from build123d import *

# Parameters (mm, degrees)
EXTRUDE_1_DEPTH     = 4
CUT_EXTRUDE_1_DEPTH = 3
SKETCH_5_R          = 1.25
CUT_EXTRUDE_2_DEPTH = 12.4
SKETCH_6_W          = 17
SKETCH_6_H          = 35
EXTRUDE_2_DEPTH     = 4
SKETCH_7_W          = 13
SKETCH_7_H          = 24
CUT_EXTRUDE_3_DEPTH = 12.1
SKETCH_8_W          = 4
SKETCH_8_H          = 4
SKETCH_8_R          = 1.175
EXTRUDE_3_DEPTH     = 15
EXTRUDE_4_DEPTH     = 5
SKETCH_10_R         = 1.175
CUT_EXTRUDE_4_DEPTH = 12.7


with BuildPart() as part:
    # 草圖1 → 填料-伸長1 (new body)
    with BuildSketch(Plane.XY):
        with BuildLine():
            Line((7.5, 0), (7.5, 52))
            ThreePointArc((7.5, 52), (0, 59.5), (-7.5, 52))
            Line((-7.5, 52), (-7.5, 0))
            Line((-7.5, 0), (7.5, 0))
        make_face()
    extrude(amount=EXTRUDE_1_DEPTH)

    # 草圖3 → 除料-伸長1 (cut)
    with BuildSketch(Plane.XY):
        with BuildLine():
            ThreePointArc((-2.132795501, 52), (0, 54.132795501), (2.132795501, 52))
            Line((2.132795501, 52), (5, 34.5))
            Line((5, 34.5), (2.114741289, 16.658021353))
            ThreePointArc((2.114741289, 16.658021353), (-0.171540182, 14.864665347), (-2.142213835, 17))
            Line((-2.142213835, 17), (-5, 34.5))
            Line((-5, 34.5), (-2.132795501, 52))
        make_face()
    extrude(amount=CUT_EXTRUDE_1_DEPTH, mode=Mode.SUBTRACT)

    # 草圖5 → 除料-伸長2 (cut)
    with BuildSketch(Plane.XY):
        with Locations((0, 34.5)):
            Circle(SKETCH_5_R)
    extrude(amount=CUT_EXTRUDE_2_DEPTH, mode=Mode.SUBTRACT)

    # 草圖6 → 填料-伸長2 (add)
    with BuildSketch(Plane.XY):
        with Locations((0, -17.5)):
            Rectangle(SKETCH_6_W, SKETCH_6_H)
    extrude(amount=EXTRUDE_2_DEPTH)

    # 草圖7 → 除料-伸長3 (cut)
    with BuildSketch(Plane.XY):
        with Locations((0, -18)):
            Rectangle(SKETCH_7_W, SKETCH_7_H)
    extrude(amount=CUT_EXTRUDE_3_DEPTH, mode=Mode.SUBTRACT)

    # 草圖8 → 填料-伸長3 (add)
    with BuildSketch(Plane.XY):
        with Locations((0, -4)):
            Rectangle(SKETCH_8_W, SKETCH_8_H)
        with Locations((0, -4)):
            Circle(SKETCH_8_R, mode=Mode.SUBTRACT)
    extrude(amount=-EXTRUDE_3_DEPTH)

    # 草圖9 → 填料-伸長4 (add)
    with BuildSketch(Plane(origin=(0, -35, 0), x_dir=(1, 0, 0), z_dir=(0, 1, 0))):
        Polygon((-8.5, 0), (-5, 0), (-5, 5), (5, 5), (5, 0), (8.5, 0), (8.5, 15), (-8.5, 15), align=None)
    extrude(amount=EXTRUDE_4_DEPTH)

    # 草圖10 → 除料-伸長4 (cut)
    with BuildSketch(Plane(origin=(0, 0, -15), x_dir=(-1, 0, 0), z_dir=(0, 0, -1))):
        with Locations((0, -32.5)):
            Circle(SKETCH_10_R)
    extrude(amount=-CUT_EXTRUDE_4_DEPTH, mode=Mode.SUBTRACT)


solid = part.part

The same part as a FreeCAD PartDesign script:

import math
import FreeCAD as App
import Part
import Sketcher

V = App.Vector
Q = App.Units.Quantity

doc = App.newDocument("Part")
body = doc.addObject("PartDesign::Body", "Body")

# Sketch on XY plane
sketch1 = body.newObject("Sketcher::SketchObject", "Sketch")
sketch1.AttachmentSupport = (doc.getObject("XY_Plane"), [""])
sketch1.MapMode = "FlatFace"
sketch1.addGeometry([
    Part.LineSegment(V(8, 0, 0), V(8, 52, 0)),
    Part.ArcOfCircle(Part.Circle(V(0, 52, 0), V(0, 0, 1), 8), math.radians(0), math.radians(180)),
    Part.LineSegment(V(-8, 52, 0), V(-8, 0, 0)),
    Part.LineSegment(V(-8, 0, 0), V(8, 0, 0)),
], False)
sketch1.addConstraint([
    Sketcher.Constraint("Tangent", 0, 2, 1, 1),
    Sketcher.Constraint("Tangent", 1, 2, 2, 1),
    Sketcher.Constraint("Coincident", 2, 2, 3, 1),
    Sketcher.Constraint("Coincident", 3, 2, 0, 1),
    Sketcher.Constraint("Vertical", 0),
    Sketcher.Constraint("Vertical", 2),
    Sketcher.Constraint("Horizontal", 3),
    Sketcher.Constraint("Symmetric", 2, 2, 3, 2, -1, 1),
    Sketcher.Constraint("Radius", 1, Q("7.5 mm")),
    Sketcher.Constraint("DistanceY", 0, 1, 0, 2, Q("52 mm")),
])
pad1 = body.newObject("PartDesign::Pad", "Pad")
pad1.Profile = sketch1
pad1.Length = 4

# Sketch on XY plane
sketch2 = body.newObject("Sketcher::SketchObject", "Sketch001")
sketch2.AttachmentSupport = (doc.getObject("XY_Plane"), [""])
sketch2.MapMode = "FlatFace"
sketch2.addGeometry([
    Part.ArcOfCircle(Part.Circle(V(0, 52, 0), V(0, 0, 1), 2.1), math.radians(0), math.radians(180)),  # 0
    Part.LineSegment(V(-2.1, 52, 0), V(-5, 34.5, 0)),  # 1
    Part.LineSegment(V(-5, 34.5, 0), V(-2.1, 17, 0)),  # 2
    Part.ArcOfCircle(Part.Circle(V(0, 17, 0), V(0, 0, 1), 2.1), math.radians(180), math.radians(351)),  # 3
    Part.LineSegment(V(2.1, 16.7, 0), V(5, 34.5, 0)),  # 4
    Part.LineSegment(V(5, 34.5, 0), V(2.1, 52, 0)),  # 5
], False)
sketch2.addConstraint([
    Sketcher.Constraint("Coincident", 0, 2, 1, 1),
    Sketcher.Constraint("Coincident", 1, 2, 2, 1),
    Sketcher.Constraint("Coincident", 2, 2, 3, 1),
    Sketcher.Constraint("Tangent", 3, 2, 4, 1),
    Sketcher.Constraint("Coincident", 4, 2, 5, 1),
    Sketcher.Constraint("Coincident", 5, 2, 0, 1),
    Sketcher.Constraint("Symmetric", 1, 2, 4, 2, -2),
    Sketcher.Constraint("Symmetric", 0, 2, 5, 2, -2),
    Sketcher.Constraint("PointOnObject", 3, 3, -2),
    Sketcher.Constraint("Horizontal", 3, 3, 2, 2),
    Sketcher.Constraint("DistanceY", -1, 1, 0, 3, Q("52 mm")),
    Sketcher.Constraint("DistanceY", -1, 1, 3, 3, Q("17 mm")),
    Sketcher.Constraint("DistanceY", -1, 1, 0, 2, Q("52 mm")),
    Sketcher.Constraint("DistanceX", 1, 2, -1, 1, Q("5 mm")),
    Sketcher.Constraint("DistanceY", -1, 1, 1, 2, Q("34.5 mm")),
    Sketcher.Constraint("Radius", 0, Q("2.132796 mm")),
    Sketcher.Constraint("Radius", 3, Q("2.142214 mm")),
])
pocket1 = body.newObject("PartDesign::Pocket", "Pocket")
pocket1.Profile = sketch2
pocket1.Length = 3
pocket1.Reversed = True

# Sketch on XY plane
sketch3 = body.newObject("Sketcher::SketchObject", "Sketch002")
sketch3.AttachmentSupport = (doc.getObject("XY_Plane"), [""])
sketch3.MapMode = "FlatFace"
sketch3.addGeometry(Part.Circle(V(0, 34.5, 0), V(0, 0, 1), 1.2), False)
sketch3.addConstraint([
    Sketcher.Constraint("PointOnObject", 0, 3, -2),
    Sketcher.Constraint("Diameter", 0, Q("2.5 mm")),
    Sketcher.Constraint("DistanceY", -1, 1, 0, 3, Q("34.5 mm")),
])
pocket2 = body.newObject("PartDesign::Pocket", "Pocket001")
pocket2.Profile = sketch3
pocket2.Length = 12.4
pocket2.Reversed = True

# Sketch on XY plane
sketch4 = body.newObject("Sketcher::SketchObject", "Sketch003")
sketch4.AttachmentSupport = (doc.getObject("XY_Plane"), [""])
sketch4.MapMode = "FlatFace"
sketch4.addGeometry([
    Part.LineSegment(V(-8, 0, 0), V(-8, -35, 0)),
    Part.LineSegment(V(-8, -35, 0), V(8, -35, 0)),
    Part.LineSegment(V(8, -35, 0), V(8, 0, 0)),
    Part.LineSegment(V(8, 0, 0), V(-8, 0, 0)),
], False)
sketch4.addConstraint([
    Sketcher.Constraint("Coincident", 0, 2, 1, 1),
    Sketcher.Constraint("Coincident", 1, 2, 2, 1),
    Sketcher.Constraint("Coincident", 2, 2, 3, 1),
    Sketcher.Constraint("Coincident", 3, 2, 0, 1),
    Sketcher.Constraint("Vertical", 0),
    Sketcher.Constraint("Horizontal", 1),
    Sketcher.Constraint("Vertical", 2),
    Sketcher.Constraint("Horizontal", 3),
    Sketcher.Constraint("Symmetric", 2, 2, 3, 2, -1, 1),
    Sketcher.Constraint("DistanceX", 1, 1, 1, 2, Q("17 mm")),
    Sketcher.Constraint("DistanceY", 0, 2, 0, 1, Q("35 mm")),
])
pad2 = body.newObject("PartDesign::Pad", "Pad001")
pad2.Profile = sketch4
pad2.Length = 4

# Sketch on XY plane
sketch5 = body.newObject("Sketcher::SketchObject", "Sketch004")
sketch5.AttachmentSupport = (doc.getObject("XY_Plane"), [""])
sketch5.MapMode = "FlatFace"
sketch5.addGeometry([
    Part.LineSegment(V(-6, -6, 0), V(-6, -30, 0)),
    Part.LineSegment(V(-6, -30, 0), V(6, -30, 0)),
    Part.LineSegment(V(6, -30, 0), V(6, -6, 0)),
    Part.LineSegment(V(6, -6, 0), V(-6, -6, 0)),
], False)
sketch5.addConstraint([
    Sketcher.Constraint("Coincident", 0, 2, 1, 1),
    Sketcher.Constraint("Coincident", 1, 2, 2, 1),
    Sketcher.Constraint("Coincident", 2, 2, 3, 1),
    Sketcher.Constraint("Coincident", 3, 2, 0, 1),
    Sketcher.Constraint("Vertical", 0),
    Sketcher.Constraint("Horizontal", 1),
    Sketcher.Constraint("Vertical", 2),
    Sketcher.Constraint("Horizontal", 3),
    Sketcher.Constraint("DistanceX", 1, 1, 1, 2, Q("13 mm")),
    Sketcher.Constraint("DistanceY", 0, 2, 0, 1, Q("24 mm")),
    Sketcher.Constraint("DistanceY", 0, 2, -1, 1, Q("30 mm")),
    Sketcher.Constraint("DistanceX", 0, 2, -1, 1, Q("6.5 mm")),
])
pocket3 = body.newObject("PartDesign::Pocket", "Pocket002")
pocket3.Profile = sketch5
pocket3.Length = 12.1
pocket3.Reversed = True

# Sketch on XY plane
sketch6 = body.newObject("Sketcher::SketchObject", "Sketch005")
sketch6.AttachmentSupport = (doc.getObject("XY_Plane"), [""])
sketch6.MapMode = "FlatFace"
sketch6.addGeometry([
    Part.LineSegment(V(-2, -2, 0), V(-2, -6, 0)),  # 0
    Part.LineSegment(V(-2, -6, 0), V(2, -6, 0)),  # 1
    Part.LineSegment(V(2, -6, 0), V(2, -2, 0)),  # 2
    Part.LineSegment(V(2, -2, 0), V(-2, -2, 0)),  # 3
    Part.Circle(V(0, -4, 0), V(0, 0, 1), 1.2),  # 4
], False)
sketch6.addConstraint([
    Sketcher.Constraint("Coincident", 0, 2, 1, 1),
    Sketcher.Constraint("Coincident", 1, 2, 2, 1),
    Sketcher.Constraint("Coincident", 2, 2, 3, 1),
    Sketcher.Constraint("Coincident", 3, 2, 0, 1),
    Sketcher.Constraint("Vertical", 0),
    Sketcher.Constraint("Horizontal", 1),
    Sketcher.Constraint("Vertical", 2),
    Sketcher.Constraint("Horizontal", 3),
    Sketcher.Constraint("PointOnObject", 4, 3, -2),
    Sketcher.Constraint("Equal", 3, 0),
    Sketcher.Constraint("Diameter", 4, Q("2.35 mm")),
    Sketcher.Constraint("DistanceX", 1, 1, 1, 2, Q("4 mm")),
    Sketcher.Constraint("DistanceY", 4, 3, -1, 1, Q("4 mm")),
    Sketcher.Constraint("DistanceX", 0, 2, -1, 1, Q("2 mm")),
    Sketcher.Constraint("DistanceY", 0, 2, -1, 1, Q("6 mm")),
])
pad3 = body.newObject("PartDesign::Pad", "Pad002")
pad3.Profile = sketch6
pad3.Length = 15
pad3.Reversed = True

# Sketch on XZ plane
sketch7 = body.newObject("Sketcher::SketchObject", "Sketch006")
sketch7.AttachmentSupport = (doc.getObject("XZ_Plane"), [""])
sketch7.MapMode = "FlatFace"
sketch7.AttachmentOffset = App.Placement(V(0, 0, 35), App.Rotation())
sketch7.addGeometry([
    Part.LineSegment(V(-8.5, 0, 0), V(-5, 0, 0)),  # 0
    Part.LineSegment(V(-5, 0, 0), V(-5, -5, 0)),  # 1
    Part.LineSegment(V(-5, -5, 0), V(5, -5, 0)),  # 2
    Part.LineSegment(V(5, -5, 0), V(5, 0, 0)),  # 3
    Part.LineSegment(V(5, 0, 0), V(8.5, 0, 0)),  # 4
    Part.LineSegment(V(8.5, 0, 0), V(8.5, -15, 0)),  # 5
    Part.LineSegment(V(8.5, -15, 0), V(-8.5, -15, 0)),  # 6
    Part.LineSegment(V(-8.5, -15, 0), V(-8.5, 0, 0)),  # 7
], False)
sketch7.addConstraint([
    Sketcher.Constraint("Coincident", 0, 2, 1, 1),
    Sketcher.Constraint("Coincident", 1, 2, 2, 1),
    Sketcher.Constraint("Coincident", 2, 2, 3, 1),
    Sketcher.Constraint("Coincident", 3, 2, 4, 1),
    Sketcher.Constraint("Coincident", 4, 2, 5, 1),
    Sketcher.Constraint("Coincident", 5, 2, 6, 1),
    Sketcher.Constraint("Coincident", 6, 2, 7, 1),
    Sketcher.Constraint("Coincident", 7, 2, 0, 1),
    Sketcher.Constraint("Horizontal", 0),
    Sketcher.Constraint("Vertical", 1),
    Sketcher.Constraint("Horizontal", 2),
    Sketcher.Constraint("Vertical", 3),
    Sketcher.Constraint("Horizontal", 4),
    Sketcher.Constraint("Vertical", 5),
    Sketcher.Constraint("Horizontal", 6),
    Sketcher.Constraint("Vertical", 7),
    Sketcher.Constraint("Symmetric", 0, 2, 3, 2, -1, 1),
    Sketcher.Constraint("Symmetric", 4, 2, 7, 2, -2),
    Sketcher.Constraint("DistanceX", 2, 1, 2, 2, Q("10 mm")),
    Sketcher.Constraint("DistanceX", 6, 2, 6, 1, Q("17 mm")),
    Sketcher.Constraint("DistanceY", 1, 2, 1, 1, Q("5 mm")),
    Sketcher.Constraint("DistanceY", 5, 2, 5, 1, Q("15 mm")),
])
pad4 = body.newObject("PartDesign::Pad", "Pad003")
pad4.Profile = sketch7
pad4.Length = 5
pad4.Reversed = True

# Sketch on XY plane
sketch8 = body.newObject("Sketcher::SketchObject", "Sketch007")
sketch8.AttachmentSupport = (doc.getObject("XY_Plane"), [""])
sketch8.MapMode = "FlatFace"
sketch8.AttachmentOffset = App.Placement(V(0, 0, -15), App.Rotation())
sketch8.addGeometry(Part.Circle(V(0, -32.5, 0), V(0, 0, 1), 1.2), False)
sketch8.addConstraint([
    Sketcher.Constraint("PointOnObject", 0, 3, -2),
    Sketcher.Constraint("Diameter", 0, Q("2.35 mm")),
    Sketcher.Constraint("DistanceY", 0, 3, -1, 1, Q("32.5 mm")),
])
pocket4 = body.newObject("PartDesign::Pocket", "Pocket003")
pocket4.Profile = sketch8
pocket4.Length = 12.7
pocket4.Reversed = True

doc.recompute()
